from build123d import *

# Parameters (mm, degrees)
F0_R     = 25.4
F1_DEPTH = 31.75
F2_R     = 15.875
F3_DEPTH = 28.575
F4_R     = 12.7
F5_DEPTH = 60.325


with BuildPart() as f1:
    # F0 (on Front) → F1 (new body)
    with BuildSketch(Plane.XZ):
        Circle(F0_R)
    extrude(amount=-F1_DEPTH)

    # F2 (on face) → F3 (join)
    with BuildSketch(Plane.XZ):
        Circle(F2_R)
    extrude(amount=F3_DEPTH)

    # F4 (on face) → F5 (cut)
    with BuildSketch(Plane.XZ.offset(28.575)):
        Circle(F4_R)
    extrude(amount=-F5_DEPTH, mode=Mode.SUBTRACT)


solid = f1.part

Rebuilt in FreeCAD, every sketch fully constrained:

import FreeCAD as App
import Part
import Sketcher

V = App.Vector
Q = App.Units.Quantity

doc = App.newDocument("Part")
body = doc.addObject("PartDesign::Body", "Body")

# Sketch on XZ plane
sketch1 = body.newObject("Sketcher::SketchObject", "Sketch")
sketch1.AttachmentSupport = (doc.getObject("XZ_Plane"), [""])
sketch1.MapMode = "FlatFace"
sketch1.addGeometry(Part.Circle(V(0, 0, 0), V(0, 0, 1), 25), False)
sketch1.addConstraint(Sketcher.Constraint("Coincident", 0, 3, -1, 1))
sketch1.addConstraint(Sketcher.Constraint("Diameter", 0, Q("2 in")))
pad1 = body.newObject("PartDesign::Pad", "Pad")
pad1.Profile = sketch1
pad1.Length = Q("1.25 in")
pad1.Reversed = True

# Sketch on XZ plane
sketch2 = body.newObject("Sketcher::SketchObject", "Sketch001")
sketch2.AttachmentSupport = (doc.getObject("XZ_Plane"), [""])
sketch2.MapMode = "FlatFace"
sketch2.addGeometry(Part.Circle(V(0, 0, 0), V(0, 0, 1), 16), False)
sketch2.addConstraint(Sketcher.Constraint("Coincident", 0, 3, -1, 1))
sketch2.addConstraint(Sketcher.Constraint("Diameter", 0, Q("1.25 in")))
pad2 = body.newObject("PartDesign::Pad", "Pad001")
pad2.Profile = sketch2
pad2.Length = Q("1.125 in")

# Sketch on XZ plane
sketch3 = body.newObject("Sketcher::SketchObject", "Sketch002")
sketch3.AttachmentSupport = (doc.getObject("XZ_Plane"), [""])
sketch3.MapMode = "FlatFace"
sketch3.AttachmentOffset = App.Placement(V(0, 0, 1.125 * 25.4), App.Rotation())
sketch3.addGeometry(Part.Circle(V(0, 0, 0), V(0, 0, 1), 13), False)
sketch3.addConstraint(Sketcher.Constraint("Coincident", 0, 3, -1, 1))
sketch3.addConstraint(Sketcher.Constraint("Diameter", 0, Q("1 in")))
pocket1 = body.newObject("PartDesign::Pocket", "Pocket")
pocket1.Profile = sketch3
pocket1.Length = Q("2.375 in")

doc.recompute()
